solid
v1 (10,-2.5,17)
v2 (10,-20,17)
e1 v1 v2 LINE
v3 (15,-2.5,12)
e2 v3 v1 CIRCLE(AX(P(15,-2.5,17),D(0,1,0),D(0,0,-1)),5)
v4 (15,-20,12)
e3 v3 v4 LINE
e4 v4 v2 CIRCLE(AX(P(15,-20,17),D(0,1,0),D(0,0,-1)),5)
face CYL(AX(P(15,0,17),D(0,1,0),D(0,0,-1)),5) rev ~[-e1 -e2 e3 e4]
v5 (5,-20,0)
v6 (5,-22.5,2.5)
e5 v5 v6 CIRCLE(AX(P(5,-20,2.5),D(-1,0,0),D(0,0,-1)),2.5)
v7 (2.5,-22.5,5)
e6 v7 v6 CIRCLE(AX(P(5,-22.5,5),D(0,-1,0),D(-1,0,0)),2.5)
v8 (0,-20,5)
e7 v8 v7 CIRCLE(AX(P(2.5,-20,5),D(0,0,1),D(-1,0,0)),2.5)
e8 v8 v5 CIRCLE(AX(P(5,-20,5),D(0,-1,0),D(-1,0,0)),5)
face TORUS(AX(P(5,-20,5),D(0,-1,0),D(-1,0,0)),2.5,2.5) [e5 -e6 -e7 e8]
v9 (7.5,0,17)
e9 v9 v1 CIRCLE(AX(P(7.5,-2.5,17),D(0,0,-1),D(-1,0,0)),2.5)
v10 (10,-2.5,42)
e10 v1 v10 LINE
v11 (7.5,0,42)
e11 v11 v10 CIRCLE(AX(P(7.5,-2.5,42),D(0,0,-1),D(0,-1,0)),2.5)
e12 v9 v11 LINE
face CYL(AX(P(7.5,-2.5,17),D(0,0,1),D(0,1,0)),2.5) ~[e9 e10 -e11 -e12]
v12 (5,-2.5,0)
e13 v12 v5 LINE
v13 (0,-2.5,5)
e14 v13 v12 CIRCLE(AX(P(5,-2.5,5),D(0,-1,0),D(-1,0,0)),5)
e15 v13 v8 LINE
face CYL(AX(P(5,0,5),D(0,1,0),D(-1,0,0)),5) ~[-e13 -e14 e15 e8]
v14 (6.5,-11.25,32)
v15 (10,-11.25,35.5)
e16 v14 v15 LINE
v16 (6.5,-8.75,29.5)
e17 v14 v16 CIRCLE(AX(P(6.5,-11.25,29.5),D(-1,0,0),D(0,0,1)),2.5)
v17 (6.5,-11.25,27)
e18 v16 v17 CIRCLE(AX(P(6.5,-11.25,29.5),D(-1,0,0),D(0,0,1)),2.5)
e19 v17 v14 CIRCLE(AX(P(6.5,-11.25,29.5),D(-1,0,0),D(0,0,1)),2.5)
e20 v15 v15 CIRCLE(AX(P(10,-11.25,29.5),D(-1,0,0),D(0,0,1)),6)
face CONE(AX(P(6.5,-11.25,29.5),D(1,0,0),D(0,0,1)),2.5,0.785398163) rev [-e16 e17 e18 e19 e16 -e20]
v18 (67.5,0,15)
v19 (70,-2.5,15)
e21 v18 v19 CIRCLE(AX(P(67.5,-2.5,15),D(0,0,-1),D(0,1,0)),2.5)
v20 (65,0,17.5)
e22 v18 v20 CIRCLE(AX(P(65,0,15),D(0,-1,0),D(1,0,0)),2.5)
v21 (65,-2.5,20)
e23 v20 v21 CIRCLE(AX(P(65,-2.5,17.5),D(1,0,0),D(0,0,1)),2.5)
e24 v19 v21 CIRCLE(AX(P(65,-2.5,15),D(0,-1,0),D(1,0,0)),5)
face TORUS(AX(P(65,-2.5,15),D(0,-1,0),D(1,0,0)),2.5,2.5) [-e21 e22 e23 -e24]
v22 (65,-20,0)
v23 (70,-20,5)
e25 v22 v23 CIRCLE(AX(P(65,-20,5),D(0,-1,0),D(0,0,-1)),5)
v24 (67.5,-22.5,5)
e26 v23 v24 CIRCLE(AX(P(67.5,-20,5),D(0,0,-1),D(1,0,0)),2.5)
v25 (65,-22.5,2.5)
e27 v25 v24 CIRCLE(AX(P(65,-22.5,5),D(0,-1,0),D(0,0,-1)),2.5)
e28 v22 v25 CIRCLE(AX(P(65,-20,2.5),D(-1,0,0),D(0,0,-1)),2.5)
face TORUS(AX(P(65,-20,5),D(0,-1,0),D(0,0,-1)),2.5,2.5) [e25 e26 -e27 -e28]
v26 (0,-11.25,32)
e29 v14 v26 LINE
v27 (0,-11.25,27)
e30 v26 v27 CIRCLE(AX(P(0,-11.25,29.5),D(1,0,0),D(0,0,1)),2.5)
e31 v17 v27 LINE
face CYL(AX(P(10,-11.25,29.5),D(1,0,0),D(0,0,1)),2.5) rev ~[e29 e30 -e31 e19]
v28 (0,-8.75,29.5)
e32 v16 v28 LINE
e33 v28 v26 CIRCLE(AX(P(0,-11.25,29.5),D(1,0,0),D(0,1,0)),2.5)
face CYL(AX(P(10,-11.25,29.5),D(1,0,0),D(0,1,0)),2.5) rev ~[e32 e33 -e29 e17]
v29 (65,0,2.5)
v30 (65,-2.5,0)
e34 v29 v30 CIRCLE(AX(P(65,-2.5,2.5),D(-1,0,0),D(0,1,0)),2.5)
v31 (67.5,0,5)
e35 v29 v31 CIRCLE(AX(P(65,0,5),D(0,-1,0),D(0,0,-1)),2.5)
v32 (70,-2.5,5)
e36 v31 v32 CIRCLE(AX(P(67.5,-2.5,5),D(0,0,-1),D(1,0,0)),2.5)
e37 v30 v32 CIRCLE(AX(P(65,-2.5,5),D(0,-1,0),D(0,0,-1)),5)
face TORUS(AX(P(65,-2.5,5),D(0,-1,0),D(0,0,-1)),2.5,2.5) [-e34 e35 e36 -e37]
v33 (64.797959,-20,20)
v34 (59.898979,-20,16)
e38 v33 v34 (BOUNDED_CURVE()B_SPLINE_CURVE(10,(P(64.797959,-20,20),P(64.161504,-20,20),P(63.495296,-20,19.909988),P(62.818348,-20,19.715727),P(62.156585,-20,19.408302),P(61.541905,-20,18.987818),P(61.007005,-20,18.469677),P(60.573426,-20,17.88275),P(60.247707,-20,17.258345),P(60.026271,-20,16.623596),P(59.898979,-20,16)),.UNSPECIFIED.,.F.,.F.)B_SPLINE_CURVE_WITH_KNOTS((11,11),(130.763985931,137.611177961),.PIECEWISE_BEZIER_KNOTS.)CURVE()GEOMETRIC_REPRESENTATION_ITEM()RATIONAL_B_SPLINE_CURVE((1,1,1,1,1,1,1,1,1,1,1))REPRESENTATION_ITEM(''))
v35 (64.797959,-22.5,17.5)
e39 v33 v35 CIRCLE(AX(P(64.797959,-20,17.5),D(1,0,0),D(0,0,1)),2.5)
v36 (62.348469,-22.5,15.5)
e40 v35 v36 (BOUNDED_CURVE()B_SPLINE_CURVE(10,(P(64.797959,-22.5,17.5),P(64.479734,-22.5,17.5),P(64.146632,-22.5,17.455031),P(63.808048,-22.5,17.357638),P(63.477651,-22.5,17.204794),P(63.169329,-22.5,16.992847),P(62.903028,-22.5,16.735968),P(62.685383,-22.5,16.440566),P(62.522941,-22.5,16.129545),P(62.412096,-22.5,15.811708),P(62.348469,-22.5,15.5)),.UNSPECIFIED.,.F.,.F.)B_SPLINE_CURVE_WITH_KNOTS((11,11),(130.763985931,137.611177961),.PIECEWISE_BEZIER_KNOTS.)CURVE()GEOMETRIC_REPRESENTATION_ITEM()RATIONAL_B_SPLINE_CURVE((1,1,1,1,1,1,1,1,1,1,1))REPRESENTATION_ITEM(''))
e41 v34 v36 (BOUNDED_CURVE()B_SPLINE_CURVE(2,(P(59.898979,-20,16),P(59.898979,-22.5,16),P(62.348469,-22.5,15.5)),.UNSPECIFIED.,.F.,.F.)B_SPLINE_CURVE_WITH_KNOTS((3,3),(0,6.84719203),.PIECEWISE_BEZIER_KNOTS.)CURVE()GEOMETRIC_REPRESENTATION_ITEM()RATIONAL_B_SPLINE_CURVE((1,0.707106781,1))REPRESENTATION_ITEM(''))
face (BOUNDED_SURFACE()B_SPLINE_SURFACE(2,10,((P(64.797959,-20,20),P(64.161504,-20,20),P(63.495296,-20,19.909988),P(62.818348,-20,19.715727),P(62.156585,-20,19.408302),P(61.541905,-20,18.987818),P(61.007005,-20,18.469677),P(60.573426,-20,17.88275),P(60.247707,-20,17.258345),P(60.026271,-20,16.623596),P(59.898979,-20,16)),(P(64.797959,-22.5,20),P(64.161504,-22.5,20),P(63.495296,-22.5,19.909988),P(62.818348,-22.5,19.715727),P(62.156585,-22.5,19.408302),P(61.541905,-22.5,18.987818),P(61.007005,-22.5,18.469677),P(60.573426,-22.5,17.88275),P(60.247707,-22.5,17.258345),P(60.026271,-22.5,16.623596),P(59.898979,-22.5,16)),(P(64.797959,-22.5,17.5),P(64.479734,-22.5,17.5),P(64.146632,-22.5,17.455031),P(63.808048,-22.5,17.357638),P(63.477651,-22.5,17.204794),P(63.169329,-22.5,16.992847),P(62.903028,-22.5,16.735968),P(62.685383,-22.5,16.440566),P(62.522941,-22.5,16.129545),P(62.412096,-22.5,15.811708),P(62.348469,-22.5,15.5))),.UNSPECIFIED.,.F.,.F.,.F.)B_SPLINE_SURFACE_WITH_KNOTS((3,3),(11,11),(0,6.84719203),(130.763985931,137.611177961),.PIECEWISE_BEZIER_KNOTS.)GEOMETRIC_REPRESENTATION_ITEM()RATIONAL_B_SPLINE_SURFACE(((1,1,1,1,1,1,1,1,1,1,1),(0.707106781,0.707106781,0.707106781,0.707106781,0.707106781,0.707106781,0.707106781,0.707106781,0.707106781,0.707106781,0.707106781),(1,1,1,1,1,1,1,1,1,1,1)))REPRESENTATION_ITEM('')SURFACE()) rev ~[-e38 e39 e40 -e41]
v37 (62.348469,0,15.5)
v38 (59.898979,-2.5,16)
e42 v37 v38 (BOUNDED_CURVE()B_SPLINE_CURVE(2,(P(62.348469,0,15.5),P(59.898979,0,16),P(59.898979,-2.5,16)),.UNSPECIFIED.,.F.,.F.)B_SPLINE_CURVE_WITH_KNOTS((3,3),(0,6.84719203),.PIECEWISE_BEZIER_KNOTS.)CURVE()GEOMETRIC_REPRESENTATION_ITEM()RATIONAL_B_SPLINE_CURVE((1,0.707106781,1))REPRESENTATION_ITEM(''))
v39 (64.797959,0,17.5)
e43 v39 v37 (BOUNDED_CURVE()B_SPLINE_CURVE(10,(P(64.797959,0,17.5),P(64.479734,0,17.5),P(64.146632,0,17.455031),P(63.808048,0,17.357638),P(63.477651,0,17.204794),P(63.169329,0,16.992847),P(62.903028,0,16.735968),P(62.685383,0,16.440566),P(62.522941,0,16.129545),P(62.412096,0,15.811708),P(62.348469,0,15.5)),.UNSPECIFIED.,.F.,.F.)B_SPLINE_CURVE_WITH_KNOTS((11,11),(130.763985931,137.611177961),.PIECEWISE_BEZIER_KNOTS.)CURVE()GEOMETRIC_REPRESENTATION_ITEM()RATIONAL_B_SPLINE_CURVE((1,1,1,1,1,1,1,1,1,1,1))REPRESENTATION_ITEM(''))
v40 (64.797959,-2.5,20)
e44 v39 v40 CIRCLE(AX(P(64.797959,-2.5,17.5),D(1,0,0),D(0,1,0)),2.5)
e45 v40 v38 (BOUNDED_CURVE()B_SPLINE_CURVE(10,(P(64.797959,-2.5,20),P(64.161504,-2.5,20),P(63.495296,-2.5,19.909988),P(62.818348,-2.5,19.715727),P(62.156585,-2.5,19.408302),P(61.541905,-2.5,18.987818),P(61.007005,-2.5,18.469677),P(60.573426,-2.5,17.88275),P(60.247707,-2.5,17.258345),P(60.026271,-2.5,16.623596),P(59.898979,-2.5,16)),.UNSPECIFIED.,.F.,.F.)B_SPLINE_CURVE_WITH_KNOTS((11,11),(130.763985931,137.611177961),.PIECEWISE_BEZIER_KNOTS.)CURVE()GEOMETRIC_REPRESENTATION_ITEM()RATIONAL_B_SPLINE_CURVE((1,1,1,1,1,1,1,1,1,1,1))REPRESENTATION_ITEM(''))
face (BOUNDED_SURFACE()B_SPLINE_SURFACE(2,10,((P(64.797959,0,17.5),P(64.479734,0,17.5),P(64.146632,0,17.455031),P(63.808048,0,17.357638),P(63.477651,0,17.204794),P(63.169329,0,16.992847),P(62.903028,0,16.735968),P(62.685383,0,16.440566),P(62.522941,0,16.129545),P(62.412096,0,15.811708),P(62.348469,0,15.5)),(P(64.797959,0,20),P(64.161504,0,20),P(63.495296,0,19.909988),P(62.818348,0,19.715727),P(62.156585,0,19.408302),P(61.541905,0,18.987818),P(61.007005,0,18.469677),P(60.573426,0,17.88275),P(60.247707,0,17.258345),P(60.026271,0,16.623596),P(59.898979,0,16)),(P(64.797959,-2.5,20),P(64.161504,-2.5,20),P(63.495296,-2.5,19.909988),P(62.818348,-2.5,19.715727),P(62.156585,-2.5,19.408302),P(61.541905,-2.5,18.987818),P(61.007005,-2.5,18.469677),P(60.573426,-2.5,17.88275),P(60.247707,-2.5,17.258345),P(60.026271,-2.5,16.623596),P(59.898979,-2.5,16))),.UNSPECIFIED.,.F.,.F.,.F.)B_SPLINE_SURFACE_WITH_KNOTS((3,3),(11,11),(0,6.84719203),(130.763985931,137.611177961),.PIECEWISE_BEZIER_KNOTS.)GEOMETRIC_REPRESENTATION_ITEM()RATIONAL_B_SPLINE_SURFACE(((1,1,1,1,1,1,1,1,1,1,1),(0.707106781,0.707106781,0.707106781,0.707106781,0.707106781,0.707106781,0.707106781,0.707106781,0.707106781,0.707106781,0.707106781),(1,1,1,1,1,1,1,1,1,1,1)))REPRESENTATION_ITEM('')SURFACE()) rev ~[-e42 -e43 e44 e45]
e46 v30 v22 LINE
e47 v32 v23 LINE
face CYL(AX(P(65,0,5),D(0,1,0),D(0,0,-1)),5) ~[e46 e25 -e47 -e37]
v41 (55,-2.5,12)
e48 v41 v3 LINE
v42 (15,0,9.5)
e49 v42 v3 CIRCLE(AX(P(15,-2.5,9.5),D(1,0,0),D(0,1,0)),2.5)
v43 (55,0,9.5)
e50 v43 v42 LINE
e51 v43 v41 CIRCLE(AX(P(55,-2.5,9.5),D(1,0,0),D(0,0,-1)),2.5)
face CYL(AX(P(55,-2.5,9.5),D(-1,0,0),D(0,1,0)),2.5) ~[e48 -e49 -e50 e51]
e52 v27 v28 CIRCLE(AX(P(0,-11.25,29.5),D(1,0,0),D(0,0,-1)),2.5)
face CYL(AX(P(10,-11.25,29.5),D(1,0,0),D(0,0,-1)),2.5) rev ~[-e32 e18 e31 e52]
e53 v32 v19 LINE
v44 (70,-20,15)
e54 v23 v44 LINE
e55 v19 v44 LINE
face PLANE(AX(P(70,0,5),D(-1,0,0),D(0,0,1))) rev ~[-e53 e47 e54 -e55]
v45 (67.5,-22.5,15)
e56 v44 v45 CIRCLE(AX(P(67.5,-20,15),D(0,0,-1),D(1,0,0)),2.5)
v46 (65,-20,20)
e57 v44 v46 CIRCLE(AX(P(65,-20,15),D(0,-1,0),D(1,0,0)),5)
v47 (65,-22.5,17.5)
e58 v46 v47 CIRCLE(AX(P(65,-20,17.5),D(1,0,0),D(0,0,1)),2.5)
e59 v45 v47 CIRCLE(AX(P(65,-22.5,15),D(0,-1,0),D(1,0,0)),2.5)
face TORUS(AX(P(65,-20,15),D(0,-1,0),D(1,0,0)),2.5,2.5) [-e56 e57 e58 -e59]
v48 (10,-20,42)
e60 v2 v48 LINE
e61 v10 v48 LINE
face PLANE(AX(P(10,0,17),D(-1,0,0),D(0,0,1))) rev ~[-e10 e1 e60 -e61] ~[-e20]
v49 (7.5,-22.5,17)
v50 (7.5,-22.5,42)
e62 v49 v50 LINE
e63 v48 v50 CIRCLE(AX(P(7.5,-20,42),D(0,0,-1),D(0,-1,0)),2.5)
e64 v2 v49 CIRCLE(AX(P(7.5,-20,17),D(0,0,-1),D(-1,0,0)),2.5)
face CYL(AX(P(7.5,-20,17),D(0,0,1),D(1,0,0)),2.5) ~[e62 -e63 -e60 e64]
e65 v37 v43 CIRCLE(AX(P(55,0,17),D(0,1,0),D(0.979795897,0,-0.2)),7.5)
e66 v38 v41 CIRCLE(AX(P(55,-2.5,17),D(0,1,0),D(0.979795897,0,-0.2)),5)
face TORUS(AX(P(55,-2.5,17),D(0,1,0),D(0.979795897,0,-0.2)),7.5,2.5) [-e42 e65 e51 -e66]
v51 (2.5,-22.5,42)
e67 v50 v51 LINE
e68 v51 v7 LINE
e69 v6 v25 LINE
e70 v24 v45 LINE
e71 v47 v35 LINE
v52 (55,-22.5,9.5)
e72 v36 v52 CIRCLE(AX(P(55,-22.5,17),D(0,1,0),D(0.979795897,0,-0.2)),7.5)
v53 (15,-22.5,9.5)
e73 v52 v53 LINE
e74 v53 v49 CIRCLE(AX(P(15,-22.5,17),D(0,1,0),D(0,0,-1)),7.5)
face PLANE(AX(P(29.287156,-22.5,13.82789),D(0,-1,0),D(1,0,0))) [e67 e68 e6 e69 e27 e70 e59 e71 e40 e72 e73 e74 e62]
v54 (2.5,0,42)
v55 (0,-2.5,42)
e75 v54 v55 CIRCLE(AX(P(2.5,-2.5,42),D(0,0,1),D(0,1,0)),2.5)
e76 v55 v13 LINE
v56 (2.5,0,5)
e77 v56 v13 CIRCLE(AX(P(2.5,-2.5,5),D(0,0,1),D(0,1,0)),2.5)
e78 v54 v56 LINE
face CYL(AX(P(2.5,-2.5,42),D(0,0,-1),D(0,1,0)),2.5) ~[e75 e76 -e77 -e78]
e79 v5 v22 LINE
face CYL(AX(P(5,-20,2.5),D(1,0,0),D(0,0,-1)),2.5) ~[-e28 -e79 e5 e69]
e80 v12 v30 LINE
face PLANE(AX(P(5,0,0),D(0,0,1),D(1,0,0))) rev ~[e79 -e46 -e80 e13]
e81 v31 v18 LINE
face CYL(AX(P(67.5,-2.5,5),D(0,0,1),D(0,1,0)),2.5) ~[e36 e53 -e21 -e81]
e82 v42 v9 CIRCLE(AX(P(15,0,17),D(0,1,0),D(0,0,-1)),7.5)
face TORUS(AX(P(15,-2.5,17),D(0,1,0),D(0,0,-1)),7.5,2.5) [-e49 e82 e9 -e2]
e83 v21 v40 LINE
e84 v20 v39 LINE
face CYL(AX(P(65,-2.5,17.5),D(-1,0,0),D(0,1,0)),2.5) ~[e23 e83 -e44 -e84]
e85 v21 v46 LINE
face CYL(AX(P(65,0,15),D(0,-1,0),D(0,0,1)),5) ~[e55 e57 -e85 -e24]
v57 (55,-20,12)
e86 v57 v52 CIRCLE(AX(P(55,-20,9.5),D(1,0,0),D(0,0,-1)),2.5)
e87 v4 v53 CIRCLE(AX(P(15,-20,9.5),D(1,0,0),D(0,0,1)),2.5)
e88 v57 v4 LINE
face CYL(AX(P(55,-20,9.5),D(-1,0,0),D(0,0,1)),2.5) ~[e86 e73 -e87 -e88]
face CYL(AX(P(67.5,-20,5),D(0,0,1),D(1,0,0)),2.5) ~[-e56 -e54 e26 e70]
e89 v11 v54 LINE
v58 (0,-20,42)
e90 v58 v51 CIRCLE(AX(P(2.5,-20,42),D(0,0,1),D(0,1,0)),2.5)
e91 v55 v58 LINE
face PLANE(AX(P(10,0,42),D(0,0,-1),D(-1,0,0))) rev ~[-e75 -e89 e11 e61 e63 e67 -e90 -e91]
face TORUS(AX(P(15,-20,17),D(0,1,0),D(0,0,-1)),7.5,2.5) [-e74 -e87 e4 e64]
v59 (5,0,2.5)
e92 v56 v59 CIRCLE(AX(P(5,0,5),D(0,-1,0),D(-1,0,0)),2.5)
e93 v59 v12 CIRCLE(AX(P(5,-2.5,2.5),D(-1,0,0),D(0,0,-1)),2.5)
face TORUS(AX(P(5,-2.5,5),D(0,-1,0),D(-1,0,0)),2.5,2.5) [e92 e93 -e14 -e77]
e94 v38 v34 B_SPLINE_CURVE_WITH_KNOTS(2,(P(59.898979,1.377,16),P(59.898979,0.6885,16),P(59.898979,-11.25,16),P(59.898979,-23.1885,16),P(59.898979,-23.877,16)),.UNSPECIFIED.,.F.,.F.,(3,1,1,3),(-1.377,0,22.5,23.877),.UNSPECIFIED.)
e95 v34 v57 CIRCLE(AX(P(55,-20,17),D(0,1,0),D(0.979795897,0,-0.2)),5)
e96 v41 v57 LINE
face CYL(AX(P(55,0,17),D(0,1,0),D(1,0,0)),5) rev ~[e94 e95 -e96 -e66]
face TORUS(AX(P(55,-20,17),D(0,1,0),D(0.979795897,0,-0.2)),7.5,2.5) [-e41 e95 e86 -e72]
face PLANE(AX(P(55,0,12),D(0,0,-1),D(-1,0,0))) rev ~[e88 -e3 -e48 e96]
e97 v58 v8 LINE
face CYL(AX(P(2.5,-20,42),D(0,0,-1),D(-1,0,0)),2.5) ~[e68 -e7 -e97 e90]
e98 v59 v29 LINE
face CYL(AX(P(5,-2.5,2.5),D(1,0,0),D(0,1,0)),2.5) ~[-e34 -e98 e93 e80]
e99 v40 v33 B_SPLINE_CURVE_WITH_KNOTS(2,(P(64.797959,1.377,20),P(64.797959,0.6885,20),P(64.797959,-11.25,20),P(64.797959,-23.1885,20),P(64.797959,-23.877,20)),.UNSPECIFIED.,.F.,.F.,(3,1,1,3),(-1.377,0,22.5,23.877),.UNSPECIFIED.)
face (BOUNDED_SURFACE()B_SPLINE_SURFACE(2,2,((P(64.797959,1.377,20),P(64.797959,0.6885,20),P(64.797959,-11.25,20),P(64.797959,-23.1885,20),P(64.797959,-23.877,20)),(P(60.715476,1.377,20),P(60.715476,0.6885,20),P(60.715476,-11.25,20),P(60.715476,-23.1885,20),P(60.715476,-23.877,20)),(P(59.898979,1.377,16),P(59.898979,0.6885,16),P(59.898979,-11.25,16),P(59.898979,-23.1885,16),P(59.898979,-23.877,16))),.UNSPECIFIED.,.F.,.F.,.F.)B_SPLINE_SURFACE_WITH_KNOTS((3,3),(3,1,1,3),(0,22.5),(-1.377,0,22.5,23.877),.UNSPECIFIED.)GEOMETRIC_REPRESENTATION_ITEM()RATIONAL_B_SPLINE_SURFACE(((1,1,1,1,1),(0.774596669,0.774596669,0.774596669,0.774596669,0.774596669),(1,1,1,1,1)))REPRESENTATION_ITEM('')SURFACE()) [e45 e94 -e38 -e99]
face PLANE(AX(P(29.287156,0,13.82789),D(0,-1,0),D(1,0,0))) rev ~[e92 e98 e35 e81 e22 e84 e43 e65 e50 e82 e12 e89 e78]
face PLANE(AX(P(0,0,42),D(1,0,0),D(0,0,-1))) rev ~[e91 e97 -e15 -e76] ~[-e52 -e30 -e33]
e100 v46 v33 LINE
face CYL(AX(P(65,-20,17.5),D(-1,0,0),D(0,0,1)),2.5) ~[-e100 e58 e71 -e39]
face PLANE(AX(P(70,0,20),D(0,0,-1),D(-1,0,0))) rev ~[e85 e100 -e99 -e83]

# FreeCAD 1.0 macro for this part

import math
import FreeCAD as App
import Part
import Sketcher
from FreeCAD import Vector


def edges_at(feature, points):
    """Names of the edges that pass closest to the given points."""
    edges = feature.Shape.Edges
    near = lambda p: min(range(len(edges)), key=lambda i: edges[i].distToShape(Part.Vertex(*p))[0])
    return sorted({f"Edge{near(p) + 1}" for p in points})


def add_polygon(sketch, points):
    """Adds a closed chain of lines whose ends are joined by coincident constraints."""
    first, n = sketch.GeometryCount, len(points)
    for a, b in zip(points, points[1:] + points[:1]):
        sketch.addGeometry(Part.LineSegment(App.Vector(*a, 0), App.Vector(*b, 0)), False)
    for i in range(n):
        sketch.addConstraint(Sketcher.Constraint("Coincident", first + i, 2, first + (i + 1) % n, 1))

doc = App.newDocument("Part")
body = doc.addObject("PartDesign::Body", "Body")

# Sketch on XZ plane
sketch1 = body.newObject("Sketcher::SketchObject", "Sketch")
sketch1.AttachmentSupport = (doc.getObject("XZ_Plane"), [""])
sketch1.MapMode = "FlatFace"
sketch1.addGeometry([
    Part.LineSegment(Vector(0, 42, 0), Vector(0, 5, 0)),  # 0
    Part.ArcOfCircle(Part.Circle(Vector(5, 5, 0), Vector(0, 0, 1), 5), math.radians(180), math.radians(270)),  # 1
    Part.LineSegment(Vector(5, 0, 0), Vector(65, 0, 0)),  # 2
    Part.ArcOfCircle(Part.Circle(Vector(65, 5, 0), Vector(0, 0, 1), 5), math.radians(-90), math.radians(0)),  # 3
    Part.LineSegment(Vector(70, 5, 0), Vector(70, 20, 0)),  # 4
    Part.LineSegment(Vector(70, 20, 0), Vector(60, 20, 0)),  # 5
    Part.LineSegment(Vector(60, 20, 0), Vector(60, 17, 0)),  # 6
    Part.ArcOfCircle(Part.Circle(Vector(55, 17, 0), Vector(0, 0, 1), 5), math.radians(-90), math.radians(0)),  # 7
    Part.LineSegment(Vector(55, 12, 0), Vector(15, 12, 0)),  # 8
    Part.ArcOfCircle(Part.Circle(Vector(15, 17, 0), Vector(0, 0, 1), 5), math.radians(180), math.radians(270)),  # 9
    Part.LineSegment(Vector(10, 17, 0), Vector(10, 42, 0)),  # 10
    Part.LineSegment(Vector(10, 42, 0), Vector(0, 42, 0)),  # 11
], False)
sketch1.addConstraint([
    Sketcher.Constraint("Tangent", 0, 2, 1, 1),
    Sketcher.Constraint("Tangent", 1, 2, 2, 1),
    Sketcher.Constraint("Tangent", 2, 2, 3, 1),
    Sketcher.Constraint("Tangent", 3, 2, 4, 1),
    Sketcher.Constraint("Coincident", 4, 2, 5, 1),
    Sketcher.Constraint("Coincident", 5, 2, 6, 1),
    Sketcher.Constraint("Tangent", 6, 2, 7, 2),
    Sketcher.Constraint("Tangent", 7, 1, 8, 1),
    Sketcher.Constraint("Tangent", 8, 2, 9, 2),
    Sketcher.Constraint("Tangent", 9, 1, 10, 1),
    Sketcher.Constraint("Coincident", 10, 2, 11, 1),
    Sketcher.Constraint("Coincident", 11, 2, 0, 1),
    Sketcher.Constraint("Vertical", 0),
    Sketcher.Constraint("Horizontal", 2),
    Sketcher.Constraint("Vertical", 4),
    Sketcher.Constraint("Horizontal", 5),
    Sketcher.Constraint("Vertical", 6),
    Sketcher.Constraint("Horizontal", 8),
    Sketcher.Constraint("Vertical", 10),
    Sketcher.Constraint("Horizontal", 11),
    Sketcher.Constraint("Equal", 1, 3),
    Sketcher.Constraint("Equal", 3, 7),
    Sketcher.Constraint("Equal", 7, 9),
    Sketcher.Constraint("PointOnObject", 0, 2, -2),
    Sketcher.Constraint("PointOnObject", 1, 2, -1),
    Sketcher.Constraint("Equal", 5, 11),
    Sketcher.Constraint("Radius", 1, 5.0),
    Sketcher.Constraint("DistanceX", 2, 1, 2, 2, 60.0),
    Sketcher.Constraint("DistanceX", 5, 2, 5, 1, 10.0),
    Sketcher.Constraint("DistanceY", 0, 2, 0, 1, 37.0),
    Sketcher.Constraint("DistanceY", 4, 1, 4, 2, 15.0),
    Sketcher.Constraint("DistanceY", 6, 2, 6, 1, 3.0),
])
pad1 = body.newObject("PartDesign::Pad", "Pad")
pad1.Profile = sketch1
pad1.Length = 22.5

# Sketch on YZ plane
sketch2 = body.newObject("Sketcher::SketchObject", "Sketch001")
sketch2.AttachmentSupport = (doc.getObject("YZ_Plane"), [""])
sketch2.MapMode = "FlatFace"
sketch2.AttachmentOffset = App.Placement(Vector(0, 0, 10), App.Rotation())
sketch2.addGeometry([
    Part.ArcOfCircle(Part.Circle(Vector(-11.25, 29.5, 0), Vector(0, 0, 1), 2.5), math.radians(0), math.radians(90)),
    Part.ArcOfCircle(Part.Circle(Vector(-11.25, 29.5, 0), Vector(0, 0, 1), 2.5), math.radians(90), math.radians(270)),
    Part.ArcOfCircle(Part.Circle(Vector(-11.25, 29.5, 0), Vector(0, 0, 1), 2.5), math.radians(-90), math.radians(0)),
], False)
sketch2.addConstraint([
    Sketcher.Constraint("Tangent", 0, 2, 1, 1),
    Sketcher.Constraint("Tangent", 1, 2, 2, 1),
    Sketcher.Constraint("Tangent", 2, 2, 0, 1),
    Sketcher.Constraint("Horizontal", 1, 3, 2, 2),
    Sketcher.Constraint("Vertical", 2, 3, 0, 2),
    Sketcher.Constraint("Vertical", 0, 2, 1, 2),
    Sketcher.Constraint("Radius", 0, 2.5),
    Sketcher.Constraint("DistanceY", -1, 1, 0, 2, 32.0),
    Sketcher.Constraint("DistanceX", 0, 3, -1, 1, 11.25),
])
pocket1 = body.newObject("PartDesign::Pocket", "Pocket")
pocket1.Profile = sketch2
pocket1.Length = 25

# Sketch on XZ plane
sketch3 = body.newObject("Sketcher::SketchObject", "Sketch002")
sketch3.AttachmentSupport = (doc.getObject("XZ_Plane"), [""])
sketch3.MapMode = "FlatFace"
sketch3.AttachmentOffset = App.Placement(Vector(0, 0, 11.25), App.Rotation())
add_polygon(sketch3, [(6.5, 32), (10, 35.5), (10, 32)])  # lines 0-2
sketch3.addGeometry(Part.LineSegment(Vector(10, 29.5, 0), Vector(6.5, 29.5, 0)), True)  # axis
sketch3.addConstraint([
    Sketcher.Constraint("Vertical", 1),
    Sketcher.Constraint("Horizontal", 2),
    Sketcher.Constraint("Horizontal", 3),
    Sketcher.Constraint("Vertical", 1, 2, 3, 1),
    Sketcher.Constraint("Vertical", 2, 2, 3, 2),
    Sketcher.Constraint("Equal", 3, 1),
    Sketcher.Constraint("DistanceX", 2, 2, 2, 1, 3.5),
    Sketcher.Constraint("DistanceX", -1, 1, 0, 2, 10.0),
    Sketcher.Constraint("DistanceY", -1, 1, 1, 2, 32.0),
    Sketcher.Constraint("DistanceY", 3, 1, 0, 2, 6.0),
])
groove = body.newObject("PartDesign::Groove", "Groove")
groove.Profile = sketch3
groove.ReferenceAxis = (sketch3, ["Axis0"])
groove.Angle = 360
doc.recompute()

fillet = body.newObject("PartDesign::Fillet", "Fillet")
fillet.Base = (groove, edges_at(groove, [(60, -11.25, 20)]))
fillet.Radius = 5
doc.recompute()

fillet2 = body.newObject("PartDesign::Fillet", "Fillet001")
fillet2.Base = (fillet, edges_at(fillet, [(70, -11.25, 20)]))
fillet2.Radius = 5
doc.recompute()

fillet3 = body.newObject("PartDesign::Fillet", "Fillet002")
fillet3.Base = (fillet2, edges_at(fillet2, [(35, 0, 12), (35, -22.5, 12)]))
fillet3.Radius = 2.5

doc.recompute()
